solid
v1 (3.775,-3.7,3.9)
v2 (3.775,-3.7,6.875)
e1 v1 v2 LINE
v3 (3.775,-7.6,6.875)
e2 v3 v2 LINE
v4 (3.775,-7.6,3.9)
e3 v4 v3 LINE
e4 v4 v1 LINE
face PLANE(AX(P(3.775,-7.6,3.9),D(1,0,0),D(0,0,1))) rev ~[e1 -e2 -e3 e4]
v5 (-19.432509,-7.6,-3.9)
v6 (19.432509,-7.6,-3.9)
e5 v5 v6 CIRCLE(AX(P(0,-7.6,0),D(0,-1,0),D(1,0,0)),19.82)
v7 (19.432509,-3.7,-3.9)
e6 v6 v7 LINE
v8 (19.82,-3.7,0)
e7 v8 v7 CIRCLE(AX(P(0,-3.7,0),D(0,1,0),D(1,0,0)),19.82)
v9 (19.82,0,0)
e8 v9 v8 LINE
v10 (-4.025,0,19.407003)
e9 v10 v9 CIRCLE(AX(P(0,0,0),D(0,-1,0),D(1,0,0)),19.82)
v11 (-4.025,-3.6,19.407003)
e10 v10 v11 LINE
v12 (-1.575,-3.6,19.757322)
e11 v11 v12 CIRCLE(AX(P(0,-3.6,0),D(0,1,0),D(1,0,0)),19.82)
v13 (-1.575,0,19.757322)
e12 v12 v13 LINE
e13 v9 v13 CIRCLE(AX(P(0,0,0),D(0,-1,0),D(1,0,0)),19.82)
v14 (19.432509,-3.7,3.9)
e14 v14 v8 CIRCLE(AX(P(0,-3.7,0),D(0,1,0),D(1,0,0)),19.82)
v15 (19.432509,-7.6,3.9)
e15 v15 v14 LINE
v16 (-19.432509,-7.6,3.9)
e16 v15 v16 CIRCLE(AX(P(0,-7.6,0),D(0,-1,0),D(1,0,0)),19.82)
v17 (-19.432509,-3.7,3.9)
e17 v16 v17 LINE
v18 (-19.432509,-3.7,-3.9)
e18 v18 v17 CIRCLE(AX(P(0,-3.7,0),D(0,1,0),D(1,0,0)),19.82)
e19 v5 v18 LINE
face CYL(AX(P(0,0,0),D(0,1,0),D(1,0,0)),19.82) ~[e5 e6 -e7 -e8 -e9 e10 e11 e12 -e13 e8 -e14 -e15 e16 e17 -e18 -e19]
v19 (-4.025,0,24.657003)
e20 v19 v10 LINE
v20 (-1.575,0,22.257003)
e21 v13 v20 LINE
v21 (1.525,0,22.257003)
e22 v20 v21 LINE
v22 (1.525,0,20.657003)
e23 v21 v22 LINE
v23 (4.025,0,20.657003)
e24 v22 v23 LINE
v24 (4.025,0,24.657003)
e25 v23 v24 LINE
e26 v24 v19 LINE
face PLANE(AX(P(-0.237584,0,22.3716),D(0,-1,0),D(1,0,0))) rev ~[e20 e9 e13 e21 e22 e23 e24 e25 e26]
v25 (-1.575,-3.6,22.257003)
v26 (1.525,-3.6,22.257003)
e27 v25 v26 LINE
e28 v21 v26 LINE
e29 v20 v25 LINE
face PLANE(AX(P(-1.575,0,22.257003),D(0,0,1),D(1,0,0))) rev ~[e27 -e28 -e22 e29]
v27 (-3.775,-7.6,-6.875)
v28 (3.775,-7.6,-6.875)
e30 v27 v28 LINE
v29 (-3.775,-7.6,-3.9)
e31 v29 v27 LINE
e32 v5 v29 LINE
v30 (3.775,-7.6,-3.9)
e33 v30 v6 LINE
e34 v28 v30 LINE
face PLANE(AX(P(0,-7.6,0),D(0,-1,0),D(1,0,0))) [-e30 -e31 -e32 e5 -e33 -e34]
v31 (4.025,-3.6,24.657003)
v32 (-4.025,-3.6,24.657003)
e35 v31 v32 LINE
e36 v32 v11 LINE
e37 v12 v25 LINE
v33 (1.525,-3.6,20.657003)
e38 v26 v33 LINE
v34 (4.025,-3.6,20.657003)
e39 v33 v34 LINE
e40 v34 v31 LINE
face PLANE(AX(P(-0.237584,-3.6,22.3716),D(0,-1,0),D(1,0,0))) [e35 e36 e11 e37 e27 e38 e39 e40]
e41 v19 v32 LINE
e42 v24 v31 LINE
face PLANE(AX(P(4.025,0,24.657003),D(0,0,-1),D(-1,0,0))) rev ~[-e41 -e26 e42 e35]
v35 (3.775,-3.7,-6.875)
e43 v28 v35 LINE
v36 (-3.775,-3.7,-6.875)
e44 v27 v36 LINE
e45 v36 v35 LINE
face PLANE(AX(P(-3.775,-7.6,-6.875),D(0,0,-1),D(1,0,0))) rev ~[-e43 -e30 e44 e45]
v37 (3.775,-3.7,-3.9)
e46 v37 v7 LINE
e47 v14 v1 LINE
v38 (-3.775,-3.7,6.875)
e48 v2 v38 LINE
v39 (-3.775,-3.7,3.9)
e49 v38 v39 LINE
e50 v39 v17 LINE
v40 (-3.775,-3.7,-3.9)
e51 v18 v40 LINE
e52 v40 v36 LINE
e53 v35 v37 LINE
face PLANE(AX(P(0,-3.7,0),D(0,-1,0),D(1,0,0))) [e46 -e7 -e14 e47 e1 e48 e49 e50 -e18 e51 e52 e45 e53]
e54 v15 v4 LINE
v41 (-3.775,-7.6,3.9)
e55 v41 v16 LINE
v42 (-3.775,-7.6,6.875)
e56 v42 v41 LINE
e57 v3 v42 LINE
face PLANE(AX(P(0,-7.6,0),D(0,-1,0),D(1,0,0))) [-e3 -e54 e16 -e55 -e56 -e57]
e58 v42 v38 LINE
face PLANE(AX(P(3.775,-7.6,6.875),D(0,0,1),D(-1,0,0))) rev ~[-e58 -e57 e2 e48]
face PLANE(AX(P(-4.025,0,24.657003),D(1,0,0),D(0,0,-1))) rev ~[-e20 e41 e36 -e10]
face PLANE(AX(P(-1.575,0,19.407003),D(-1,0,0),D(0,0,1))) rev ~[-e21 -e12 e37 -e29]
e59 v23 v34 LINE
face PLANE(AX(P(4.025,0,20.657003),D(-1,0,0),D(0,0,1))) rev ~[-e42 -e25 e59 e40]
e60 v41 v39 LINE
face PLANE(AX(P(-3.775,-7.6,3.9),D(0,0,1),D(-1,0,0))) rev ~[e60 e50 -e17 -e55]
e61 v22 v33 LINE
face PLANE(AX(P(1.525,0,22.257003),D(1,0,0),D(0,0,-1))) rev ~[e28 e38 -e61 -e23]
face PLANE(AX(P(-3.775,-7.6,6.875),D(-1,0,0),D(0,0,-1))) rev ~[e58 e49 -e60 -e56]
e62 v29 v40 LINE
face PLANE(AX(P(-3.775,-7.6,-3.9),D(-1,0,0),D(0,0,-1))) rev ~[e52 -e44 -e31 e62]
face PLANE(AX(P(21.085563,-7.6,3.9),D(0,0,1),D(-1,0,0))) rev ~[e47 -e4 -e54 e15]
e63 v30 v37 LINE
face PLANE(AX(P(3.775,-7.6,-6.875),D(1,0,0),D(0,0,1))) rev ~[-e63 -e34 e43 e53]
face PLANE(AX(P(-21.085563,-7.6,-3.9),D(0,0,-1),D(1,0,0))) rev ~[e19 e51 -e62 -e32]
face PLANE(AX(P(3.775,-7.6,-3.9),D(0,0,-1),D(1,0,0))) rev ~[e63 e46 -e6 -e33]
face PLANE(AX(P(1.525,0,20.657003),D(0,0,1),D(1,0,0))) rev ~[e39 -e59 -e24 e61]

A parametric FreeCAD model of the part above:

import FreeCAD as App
import Part
import Sketcher
from FreeCAD import Vector
Q = App.Units.Quantity

doc = App.newDocument("Part")
body = doc.addObject("PartDesign::Body", "Body")

# Sketch on XZ plane
sketch1 = doc.addObject("Sketcher::SketchObject", "Sketch")
body.addObject(sketch1)
sketch1.AttachmentSupport = (doc.XZ_Plane, [""])
sketch1.MapMode = "FlatFace"
sketch1.addGeometry(Part.Circle(Vector(0, 0, 0), Vector(0, 0, 1), 19.82), False)
sketch1.addConstraint([
    Sketcher.Constraint("Coincident", 0, 3, -1, 1),
    Sketcher.Constraint("Diameter", 0, Q("39.64 mm")),
])
pad1 = doc.addObject("PartDesign::Pad", "Pad")
body.addObject(pad1)
pad1.Profile = sketch1
pad1.Length = 7.6

# Sketch on XZ plane
sketch2 = doc.addObject("Sketcher::SketchObject", "Sketch001")
body.addObject(sketch2)
sketch2.AttachmentSupport = (doc.XZ_Plane, [""])
sketch2.MapMode = "FlatFace"
sketch2.AttachmentOffset = App.Placement(Vector(0, 0, 7.6), App.Rotation())
sketch2.addGeometry([
    Part.LineSegment(Vector(-3.775, 3.9, 0), Vector(-21.085563, 3.9, 0)),  # 0
    Part.LineSegment(Vector(-21.085563, 3.9, 0), Vector(-21.085563, -3.9, 0)),  # 1
    Part.LineSegment(Vector(-21.085563, -3.9, 0), Vector(-3.775, -3.9, 0)),  # 2
    Part.LineSegment(Vector(-3.775, -3.9, 0), Vector(-3.775, -6.875, 0)),  # 3
    Part.LineSegment(Vector(-3.775, -6.875, 0), Vector(3.775, -6.875, 0)),  # 4
    Part.LineSegment(Vector(3.775, -6.875, 0), Vector(3.775, -3.9, 0)),  # 5
    Part.LineSegment(Vector(3.775, -3.9, 0), Vector(21.085563, -3.9, 0)),  # 6
    Part.LineSegment(Vector(21.085563, -3.9, 0), Vector(21.085563, 3.9, 0)),  # 7
    Part.LineSegment(Vector(21.085563, 3.9, 0), Vector(3.775, 3.9, 0)),  # 8
    Part.LineSegment(Vector(3.775, 3.9, 0), Vector(3.775, 6.875, 0)),  # 9
    Part.LineSegment(Vector(3.775, 6.875, 0), Vector(-3.775, 6.875, 0)),  # 10
    Part.LineSegment(Vector(-3.775, 6.875, 0), Vector(-3.775, 3.9, 0)),  # 11
], False)
sketch2.addConstraint([
    Sketcher.Constraint("Coincident", 0, 2, 1, 1),
    Sketcher.Constraint("Coincident", 1, 2, 2, 1),
    Sketcher.Constraint("Coincident", 2, 2, 3, 1),
    Sketcher.Constraint("Coincident", 3, 2, 4, 1),
    Sketcher.Constraint("Coincident", 4, 2, 5, 1),
    Sketcher.Constraint("Coincident", 5, 2, 6, 1),
    Sketcher.Constraint("Coincident", 6, 2, 7, 1),
    Sketcher.Constraint("Coincident", 7, 2, 8, 1),
    Sketcher.Constraint("Coincident", 8, 2, 9, 1),
    Sketcher.Constraint("Coincident", 9, 2, 10, 1),
    Sketcher.Constraint("Coincident", 10, 2, 11, 1),
    Sketcher.Constraint("Coincident", 11, 2, 0, 1),
    Sketcher.Constraint("Horizontal", 0),
    Sketcher.Constraint("Vertical", 1),
    Sketcher.Constraint("Horizontal", 2),
    Sketcher.Constraint("Vertical", 3),
    Sketcher.Constraint("Horizontal", 4),
    Sketcher.Constraint("Vertical", 5),
    Sketcher.Constraint("Horizontal", 6),
    Sketcher.Constraint("Vertical", 7),
    Sketcher.Constraint("Horizontal", 8),
    Sketcher.Constraint("Vertical", 9),
    Sketcher.Constraint("Horizontal", 10),
    Sketcher.Constraint("Vertical", 11),
    Sketcher.Constraint("Symmetric", 0, 2, 6, 2, -1, 1),
    Sketcher.Constraint("Symmetric", 2, 2, 8, 2, -1, 1),
    Sketcher.Constraint("Symmetric", 4, 2, 10, 2, -1, 1),
    Sketcher.Constraint("Symmetric", 2, 2, 5, 2, -2),
    Sketcher.Constraint("DistanceY", 1, 2, 1, 1, Q("7.8 mm")),
    Sketcher.Constraint("DistanceX", 4, 1, 4, 2, Q("7.55 mm")),
    Sketcher.Constraint("DistanceY", 3, 2, 3, 1, Q("2.975 mm")),
    Sketcher.Constraint("DistanceX", 0, 2, 0, 1, Q("17.310563 mm")),
])
pocket1 = doc.addObject("PartDesign::Pocket", "Pocket")
body.addObject(pocket1)
pocket1.Profile = sketch2
pocket1.Length = 3.9

# Sketch on XZ plane
sketch3 = doc.addObject("Sketcher::SketchObject", "Sketch002")
body.addObject(sketch3)
sketch3.AttachmentSupport = (doc.XZ_Plane, [""])
sketch3.MapMode = "FlatFace"
sketch3.addGeometry([
    Part.LineSegment(Vector(-4.025, 24.657003, 0), Vector(-4.025, 19.407003, 0)),  # 0
    Part.LineSegment(Vector(-4.025, 19.407003, 0), Vector(-1.575, 19.407003, 0)),  # 1
    Part.LineSegment(Vector(-1.575, 19.407003, 0), Vector(-1.575, 22.257003, 0)),  # 2
    Part.LineSegment(Vector(-1.575, 22.257003, 0), Vector(1.525, 22.257003, 0)),  # 3
    Part.LineSegment(Vector(1.525, 22.257003, 0), Vector(1.525, 20.657003, 0)),  # 4
    Part.LineSegment(Vector(1.525, 20.657003, 0), Vector(4.025, 20.657003, 0)),  # 5
    Part.LineSegment(Vector(4.025, 20.657003, 0), Vector(4.025, 24.657003, 0)),  # 6
    Part.LineSegment(Vector(4.025, 24.657003, 0), Vector(-4.025, 24.657003, 0)),  # 7
], False)
sketch3.addConstraint([
    Sketcher.Constraint("Coincident", 0, 2, 1, 1),
    Sketcher.Constraint("Coincident", 1, 2, 2, 1),
    Sketcher.Constraint("Coincident", 2, 2, 3, 1),
    Sketcher.Constraint("Coincident", 3, 2, 4, 1),
    Sketcher.Constraint("Coincident", 4, 2, 5, 1),
    Sketcher.Constraint("Coincident", 5, 2, 6, 1),
    Sketcher.Constraint("Coincident", 6, 2, 7, 1),
    Sketcher.Constraint("Coincident", 7, 2, 0, 1),
    Sketcher.Constraint("Vertical", 0),
    Sketcher.Constraint("Horizontal", 1),
    Sketcher.Constraint("Vertical", 2),
    Sketcher.Constraint("Horizontal", 3),
    Sketcher.Constraint("Vertical", 4),
    Sketcher.Constraint("Horizontal", 5),
    Sketcher.Constraint("Vertical", 6),
    Sketcher.Constraint("Horizontal", 7),
    Sketcher.Constraint("DistanceY", 6, 1, 6, 2, Q("4 mm")),
    Sketcher.Constraint("DistanceX", 3, 1, 3, 2, Q("3.1 mm")),
    Sketcher.Constraint("DistanceX", 5, 1, 5, 2, Q("2.5 mm")),
    Sketcher.Constraint("DistanceY", 4, 2, 4, 1, Q("1.6 mm")),
    Sketcher.Constraint("DistanceX", 1, 1, 1, 2, Q("2.45 mm")),
    Sketcher.Constraint("DistanceY", 0, 2, 0, 1, Q("5.25 mm")),
    Sketcher.Constraint("DistanceX", 0, 2, -1, 1, Q("4.025 mm")),
    Sketcher.Constraint("DistanceY", -1, 1, 0, 2, Q("19.407003 mm")),
])
pad2 = doc.addObject("PartDesign::Pad", "Pad001")
body.addObject(pad2)
pad2.Profile = sketch3
pad2.Length = 3.6

doc.recompute()
